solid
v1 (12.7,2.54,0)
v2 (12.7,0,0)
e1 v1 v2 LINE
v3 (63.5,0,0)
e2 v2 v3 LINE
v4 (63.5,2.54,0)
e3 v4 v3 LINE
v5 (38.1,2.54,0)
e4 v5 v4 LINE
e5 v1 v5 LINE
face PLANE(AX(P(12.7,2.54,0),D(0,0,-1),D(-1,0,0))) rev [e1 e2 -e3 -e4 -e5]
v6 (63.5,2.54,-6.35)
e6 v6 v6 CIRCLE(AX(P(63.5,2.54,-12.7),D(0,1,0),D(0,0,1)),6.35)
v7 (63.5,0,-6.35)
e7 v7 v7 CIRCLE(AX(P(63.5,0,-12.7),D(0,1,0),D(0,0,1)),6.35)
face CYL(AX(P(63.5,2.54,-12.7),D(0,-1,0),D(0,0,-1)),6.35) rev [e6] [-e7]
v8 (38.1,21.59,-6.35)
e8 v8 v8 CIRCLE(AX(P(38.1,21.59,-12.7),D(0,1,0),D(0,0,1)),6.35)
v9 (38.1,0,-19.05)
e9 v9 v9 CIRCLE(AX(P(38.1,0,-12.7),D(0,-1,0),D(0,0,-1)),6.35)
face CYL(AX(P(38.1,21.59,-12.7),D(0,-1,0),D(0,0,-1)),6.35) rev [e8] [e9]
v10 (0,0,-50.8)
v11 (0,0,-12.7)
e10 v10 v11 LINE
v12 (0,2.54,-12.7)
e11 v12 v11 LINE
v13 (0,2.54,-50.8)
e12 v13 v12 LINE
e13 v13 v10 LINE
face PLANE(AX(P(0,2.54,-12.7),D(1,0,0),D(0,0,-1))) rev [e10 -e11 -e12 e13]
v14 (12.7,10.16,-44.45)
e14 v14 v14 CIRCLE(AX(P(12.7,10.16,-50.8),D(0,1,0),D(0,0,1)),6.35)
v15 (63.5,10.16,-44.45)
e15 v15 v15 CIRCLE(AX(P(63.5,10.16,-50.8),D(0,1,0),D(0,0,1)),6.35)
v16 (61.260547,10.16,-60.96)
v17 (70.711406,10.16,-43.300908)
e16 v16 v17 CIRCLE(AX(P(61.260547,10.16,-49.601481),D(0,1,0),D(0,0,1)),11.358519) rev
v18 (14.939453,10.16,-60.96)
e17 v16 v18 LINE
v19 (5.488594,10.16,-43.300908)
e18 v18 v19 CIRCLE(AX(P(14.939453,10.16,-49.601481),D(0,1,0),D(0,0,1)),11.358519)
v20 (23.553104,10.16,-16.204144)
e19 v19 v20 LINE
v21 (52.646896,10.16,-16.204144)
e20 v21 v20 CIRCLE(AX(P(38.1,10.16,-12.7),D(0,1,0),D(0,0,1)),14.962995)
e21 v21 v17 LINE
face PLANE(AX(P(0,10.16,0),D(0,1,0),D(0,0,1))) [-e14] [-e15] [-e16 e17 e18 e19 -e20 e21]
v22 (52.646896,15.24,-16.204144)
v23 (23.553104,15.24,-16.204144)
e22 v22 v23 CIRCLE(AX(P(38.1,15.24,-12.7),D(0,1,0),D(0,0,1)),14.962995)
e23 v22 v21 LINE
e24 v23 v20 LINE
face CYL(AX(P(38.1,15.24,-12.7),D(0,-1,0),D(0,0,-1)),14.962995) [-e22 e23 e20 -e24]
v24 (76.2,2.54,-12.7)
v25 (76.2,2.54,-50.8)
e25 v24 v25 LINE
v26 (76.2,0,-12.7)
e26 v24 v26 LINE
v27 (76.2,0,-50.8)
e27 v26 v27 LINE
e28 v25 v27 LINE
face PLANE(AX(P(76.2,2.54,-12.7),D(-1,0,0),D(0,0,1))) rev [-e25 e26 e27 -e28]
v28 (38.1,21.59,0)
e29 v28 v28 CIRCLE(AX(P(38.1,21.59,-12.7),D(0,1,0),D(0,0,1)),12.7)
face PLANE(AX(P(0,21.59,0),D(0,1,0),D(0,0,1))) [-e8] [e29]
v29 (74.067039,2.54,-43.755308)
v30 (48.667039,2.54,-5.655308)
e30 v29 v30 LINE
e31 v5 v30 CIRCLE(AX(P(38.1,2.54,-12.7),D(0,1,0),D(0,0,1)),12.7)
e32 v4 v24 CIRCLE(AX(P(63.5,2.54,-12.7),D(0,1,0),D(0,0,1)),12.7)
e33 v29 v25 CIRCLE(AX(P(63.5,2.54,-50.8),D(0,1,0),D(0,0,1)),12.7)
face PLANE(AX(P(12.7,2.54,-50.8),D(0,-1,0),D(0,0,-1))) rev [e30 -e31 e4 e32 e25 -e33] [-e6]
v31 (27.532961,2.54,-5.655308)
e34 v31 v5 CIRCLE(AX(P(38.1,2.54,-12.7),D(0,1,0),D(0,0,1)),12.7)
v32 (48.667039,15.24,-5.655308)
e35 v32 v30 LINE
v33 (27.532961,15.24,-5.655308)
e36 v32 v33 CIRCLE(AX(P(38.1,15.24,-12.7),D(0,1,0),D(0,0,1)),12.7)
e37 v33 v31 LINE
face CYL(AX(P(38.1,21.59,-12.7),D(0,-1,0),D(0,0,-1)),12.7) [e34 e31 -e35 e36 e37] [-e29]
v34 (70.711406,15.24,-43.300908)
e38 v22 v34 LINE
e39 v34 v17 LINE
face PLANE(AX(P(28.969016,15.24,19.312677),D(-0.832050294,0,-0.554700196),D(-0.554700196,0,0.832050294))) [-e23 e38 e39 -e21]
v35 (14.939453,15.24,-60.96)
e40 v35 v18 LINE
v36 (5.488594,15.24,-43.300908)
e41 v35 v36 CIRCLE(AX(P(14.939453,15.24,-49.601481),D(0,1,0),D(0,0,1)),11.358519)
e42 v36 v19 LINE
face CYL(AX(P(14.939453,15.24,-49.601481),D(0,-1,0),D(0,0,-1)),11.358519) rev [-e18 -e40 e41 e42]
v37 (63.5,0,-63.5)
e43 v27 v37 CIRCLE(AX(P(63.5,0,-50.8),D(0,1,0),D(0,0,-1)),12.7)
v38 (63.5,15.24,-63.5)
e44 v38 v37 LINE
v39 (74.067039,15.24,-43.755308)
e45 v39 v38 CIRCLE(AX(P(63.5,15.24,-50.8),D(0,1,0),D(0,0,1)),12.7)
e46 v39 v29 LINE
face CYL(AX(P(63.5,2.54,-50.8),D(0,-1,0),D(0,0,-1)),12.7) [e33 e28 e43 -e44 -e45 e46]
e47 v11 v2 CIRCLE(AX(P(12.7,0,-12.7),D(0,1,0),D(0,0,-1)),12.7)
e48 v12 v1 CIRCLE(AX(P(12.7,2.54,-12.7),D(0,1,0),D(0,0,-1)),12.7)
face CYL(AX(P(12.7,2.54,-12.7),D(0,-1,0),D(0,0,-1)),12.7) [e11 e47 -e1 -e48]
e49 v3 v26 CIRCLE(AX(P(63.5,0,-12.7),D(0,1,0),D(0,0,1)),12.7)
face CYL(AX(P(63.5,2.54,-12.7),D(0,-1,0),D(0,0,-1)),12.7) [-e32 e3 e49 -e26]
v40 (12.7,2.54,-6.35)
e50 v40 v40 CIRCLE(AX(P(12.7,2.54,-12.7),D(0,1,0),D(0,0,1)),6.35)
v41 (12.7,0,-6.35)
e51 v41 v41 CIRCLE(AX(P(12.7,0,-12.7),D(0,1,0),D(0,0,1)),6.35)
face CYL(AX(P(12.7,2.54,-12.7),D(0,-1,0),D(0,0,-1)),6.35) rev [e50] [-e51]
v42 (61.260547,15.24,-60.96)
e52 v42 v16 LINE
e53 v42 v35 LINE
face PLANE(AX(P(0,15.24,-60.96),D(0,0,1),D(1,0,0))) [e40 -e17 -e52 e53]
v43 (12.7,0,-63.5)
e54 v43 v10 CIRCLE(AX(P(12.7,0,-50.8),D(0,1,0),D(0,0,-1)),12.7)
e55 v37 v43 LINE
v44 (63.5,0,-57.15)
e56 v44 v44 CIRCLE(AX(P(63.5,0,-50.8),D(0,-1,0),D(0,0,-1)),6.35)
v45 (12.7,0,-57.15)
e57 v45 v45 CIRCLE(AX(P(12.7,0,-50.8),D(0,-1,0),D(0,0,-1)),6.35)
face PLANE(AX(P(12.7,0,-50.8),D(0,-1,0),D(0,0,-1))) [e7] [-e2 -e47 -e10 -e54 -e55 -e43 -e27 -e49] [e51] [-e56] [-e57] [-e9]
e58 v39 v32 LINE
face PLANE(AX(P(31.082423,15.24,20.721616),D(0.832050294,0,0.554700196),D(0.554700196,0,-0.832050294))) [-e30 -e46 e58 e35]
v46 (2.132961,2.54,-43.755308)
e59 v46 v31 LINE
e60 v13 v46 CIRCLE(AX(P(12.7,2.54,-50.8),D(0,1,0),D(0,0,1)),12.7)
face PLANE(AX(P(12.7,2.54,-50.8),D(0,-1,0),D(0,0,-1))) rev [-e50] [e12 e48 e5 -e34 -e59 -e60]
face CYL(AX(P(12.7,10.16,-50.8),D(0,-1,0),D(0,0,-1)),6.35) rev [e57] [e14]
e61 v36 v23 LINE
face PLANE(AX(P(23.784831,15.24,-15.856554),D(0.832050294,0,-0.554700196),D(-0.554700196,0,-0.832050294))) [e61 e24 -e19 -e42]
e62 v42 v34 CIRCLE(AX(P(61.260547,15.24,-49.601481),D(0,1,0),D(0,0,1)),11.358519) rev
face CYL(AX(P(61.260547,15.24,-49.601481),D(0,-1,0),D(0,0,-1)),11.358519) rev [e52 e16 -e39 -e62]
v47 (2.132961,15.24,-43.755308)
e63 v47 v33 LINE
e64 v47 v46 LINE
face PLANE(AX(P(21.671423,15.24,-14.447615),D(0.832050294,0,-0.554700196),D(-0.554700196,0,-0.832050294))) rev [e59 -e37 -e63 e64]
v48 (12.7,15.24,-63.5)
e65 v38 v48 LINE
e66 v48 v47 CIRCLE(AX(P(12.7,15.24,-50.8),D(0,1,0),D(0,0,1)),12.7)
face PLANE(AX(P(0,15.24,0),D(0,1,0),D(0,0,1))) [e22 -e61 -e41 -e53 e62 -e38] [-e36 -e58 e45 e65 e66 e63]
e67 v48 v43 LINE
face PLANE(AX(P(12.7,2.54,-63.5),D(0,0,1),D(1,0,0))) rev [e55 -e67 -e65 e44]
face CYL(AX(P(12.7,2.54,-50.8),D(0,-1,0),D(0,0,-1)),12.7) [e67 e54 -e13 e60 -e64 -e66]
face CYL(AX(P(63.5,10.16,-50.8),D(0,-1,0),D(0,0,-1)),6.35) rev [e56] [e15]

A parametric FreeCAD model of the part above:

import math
import FreeCAD as App
import Part
import Sketcher
Q = App.Units.Quantity

doc = App.newDocument("Part")
params = doc.addObject("Spreadsheet::Sheet", "Params")
for row, (alias, value) in enumerate([
    ("sketch1_diameter", "0.5 in"),
    ("sketch1_radius", "0.5 in"),
    ("sketch1_width", "2 in"),
    ("sketch1_height", "1.5 in"),
    ("pad1_length", "0.1 in"),
    ("sketch2_radius", "0.5 in"),
    ("sketch2_width", "2 in"),
    ("pad2_length", "0.5 in"),
    ("sketch3_diameter", "1 in"),
    ("sketch3_diameter2", "0.5 in"),
    ("pad3_length", "0.75 in"),
    ("sketch4_diameter", "0.5 in"),
    ("pad4_length", "0.3 in"),
    ("sketch5_diameter", "0.5 in"),
    ("pocket1_length", "0.3 in"),
], start=1):
    params.set(f"A{row}", alias)
    params.set(f"B{row}", "=" + value)
    params.setAlias(f"B{row}", alias)

body = doc.addObject("PartDesign::Body", "Body")

sketch1 = body.newObject("Sketcher::SketchObject", "Sketch")
sketch1.AttachmentSupport = (doc.getObject("XZ_Plane"), [""])
sketch1.MapMode = "FlatFace"
sketch1.addGeometry([
    Part.LineSegment(App.Vector(12.7, 0, 0), App.Vector(63.5, 0, 0)),
    Part.ArcOfCircle(Part.Circle(App.Vector(63.5, -12.7, 0), App.Vector(0, 0, 1), 12.7), math.radians(0), math.radians(90)),
    Part.LineSegment(App.Vector(76.2, -12.7, 0), App.Vector(76.2, -50.8, 0)),
    Part.ArcOfCircle(Part.Circle(App.Vector(63.5, -50.8, 0), App.Vector(0, 0, 1), 12.7), math.radians(-90), math.radians(0)),
    Part.LineSegment(App.Vector(63.5, -63.5, 0), App.Vector(12.7, -63.5, 0)),
    Part.ArcOfCircle(Part.Circle(App.Vector(12.7, -50.8, 0), App.Vector(0, 0, 1), 12.7), math.radians(180), math.radians(270)),
    Part.LineSegment(App.Vector(0, -50.8, 0), App.Vector(0, -12.7, 0)),
    Part.ArcOfCircle(Part.Circle(App.Vector(12.7, -12.7, 0), App.Vector(0, 0, 1), 12.7), math.radians(90), math.radians(180)),
    Part.Circle(App.Vector(12.7, -12.7, 0), App.Vector(0, 0, 1), 6.35),
    Part.Circle(App.Vector(63.5, -12.7, 0), App.Vector(0, 0, 1), 6.35),
], False)
sketch1.addConstraint([
    Sketcher.Constraint("Tangent", 0, 2, 1, 2),
    Sketcher.Constraint("Tangent", 1, 1, 2, 1),
    Sketcher.Constraint("Tangent", 2, 2, 3, 2),
    Sketcher.Constraint("Tangent", 3, 1, 4, 1),
    Sketcher.Constraint("Tangent", 4, 2, 5, 2),
    Sketcher.Constraint("Tangent", 5, 1, 6, 1),
    Sketcher.Constraint("Tangent", 6, 2, 7, 2),
    Sketcher.Constraint("Tangent", 7, 1, 0, 1),
    Sketcher.Constraint("Horizontal", 0),
    Sketcher.Constraint("Vertical", 2),
    Sketcher.Constraint("Horizontal", 4),
    Sketcher.Constraint("Vertical", 6),
    Sketcher.Constraint("Coincident", 8, 3, 7, 3),
    Sketcher.Constraint("Coincident", 9, 3, 1, 3),
    Sketcher.Constraint("Equal", 1, 3),
    Sketcher.Constraint("Equal", 3, 5),
    Sketcher.Constraint("Equal", 5, 7),
    Sketcher.Constraint("Equal", 8, 9),
    Sketcher.Constraint("PointOnObject", 0, 2, -1),
    Sketcher.Constraint("PointOnObject", 5, 1, -2),
    Sketcher.Constraint("Diameter", 8, Q("0.5 in")),
    Sketcher.Constraint("Radius", 1, Q("0.5 in")),
    Sketcher.Constraint("DistanceX", 0, 1, 0, 2, Q("2 in")),
    Sketcher.Constraint("DistanceY", 2, 2, 2, 1, Q("1.5 in")),
])
sketch1.setExpression("Constraints[20]", "Params.sketch1_diameter")
sketch1.setExpression("Constraints[21]", "Params.sketch1_radius")
sketch1.setExpression("Constraints[22]", "Params.sketch1_width")
sketch1.setExpression("Constraints[23]", "Params.sketch1_height")
pad1 = body.newObject("PartDesign::Pad", "Pad")
pad1.Profile = sketch1
pad1.setExpression("Length", "Params.pad1_length")
pad1.Reversed = True

sketch2 = body.newObject("Sketcher::SketchObject", "Sketch001")
sketch2.AttachmentSupport = (doc.getObject("XZ_Plane"), [""])
sketch2.MapMode = "FlatFace"
sketch2.AttachmentOffset = App.Placement(App.Vector(0, 0, -0.1 * 25.4), App.Rotation())
sketch2.addGeometry([
    Part.LineSegment(App.Vector(63.5, -63.5, 0), App.Vector(12.7, -63.5, 0)),
    Part.ArcOfCircle(Part.Circle(App.Vector(12.7, -50.8, 0), App.Vector(0, 0, 1), 12.7), math.radians(180), math.radians(270)),
    Part.ArcOfCircle(Part.Circle(App.Vector(12.7, -50.8, 0), App.Vector(0, 0, 1), 12.7), math.radians(146.309932), math.radians(180)),
    Part.LineSegment(App.Vector(2.132961, -43.755308, 0), App.Vector(27.532961, -5.655308, 0)),
    Part.ArcOfCircle(Part.Circle(App.Vector(38.1, -12.7, 0), App.Vector(0, 0, 1), 12.7), math.radians(146.309932), math.radians(360)),
    Part.ArcOfCircle(Part.Circle(App.Vector(38.1, -12.7, 0), App.Vector(0, 0, 1), 12.7), math.radians(0), math.radians(33.690068)),
    Part.LineSegment(App.Vector(48.667039, -5.655308, 0), App.Vector(74.067039, -43.755308, 0)),
    Part.ArcOfCircle(Part.Circle(App.Vector(63.5, -50.8, 0), App.Vector(0, 0, 1), 12.7), math.radians(0), math.radians(33.690068)),
    Part.ArcOfCircle(Part.Circle(App.Vector(63.5, -50.8, 0), App.Vector(0, 0, 1), 12.7), math.radians(-90), math.radians(0)),
    Part.ArcOfCircle(Part.Circle(App.Vector(38.1, -12.7, 0), App.Vector(0, 0, 1), 14.962995), math.radians(-166.456277), math.radians(-13.543723)),
    Part.LineSegment(App.Vector(23.553104, -16.204144, 0), App.Vector(5.488594, -43.300908, 0)),
    Part.ArcOfCircle(Part.Circle(App.Vector(14.939453, -49.601481, 0), App.Vector(0, 0, 1), 11.358519), math.radians(146.309932), math.radians(270)),
    Part.LineSegment(App.Vector(14.939453, -60.96, 0), App.Vector(61.260547, -60.96, 0)),
    Part.ArcOfCircle(Part.Circle(App.Vector(61.260547, -49.601481, 0), App.Vector(0, 0, 1), 11.358519), math.radians(-90), math.radians(33.690068)),
    Part.LineSegment(App.Vector(70.711406, -43.300908, 0), App.Vector(52.646896, -16.204144, 0)),
], False)
sketch2.addConstraint([
    Sketcher.Constraint("Tangent", 0, 2, 1, 2),
    Sketcher.Constraint("Tangent", 1, 1, 2, 2),
    Sketcher.Constraint("Tangent", 2, 1, 3, 1),
    Sketcher.Constraint("Tangent", 3, 2, 4, 1),
    Sketcher.Constraint("Tangent", 4, 2, 5, 1),
    Sketcher.Constraint("Tangent", 5, 2, 6, 1),
    Sketcher.Constraint("Tangent", 6, 2, 7, 2),
    Sketcher.Constraint("Tangent", 7, 1, 8, 2),
    Sketcher.Constraint("Tangent", 8, 1, 0, 1),
    Sketcher.Constraint("Coincident", 9, 1, 10, 1),
    Sketcher.Constraint("Tangent", 10, 2, 11, 1),
    Sketcher.Constraint("Tangent", 11, 2, 12, 1),
    Sketcher.Constraint("Tangent", 12, 2, 13, 1),
    Sketcher.Constraint("Tangent", 13, 2, 14, 1),
    Sketcher.Constraint("Coincident", 14, 2, 9, 2),
    Sketcher.Constraint("Horizontal", 0),
    Sketcher.Constraint("Horizontal", 12),
    Sketcher.Constraint("Coincident", 9, 3, 4, 3),
    Sketcher.Constraint("Equal", 1, 2),
    Sketcher.Constraint("Equal", 2, 4),
    Sketcher.Constraint("Equal", 4, 5),
    Sketcher.Constraint("Equal", 5, 7),
    Sketcher.Constraint("Equal", 7, 8),
    Sketcher.Constraint("Equal", 11, 13),
    Sketcher.Constraint("PointOnObject", 1, 1, -2),
    Sketcher.Constraint("Parallel", 3, 10),
    Sketcher.Constraint("Parallel", 6, 14),
    Sketcher.Constraint("Horizontal", 8, 3, 1, 1),
    Sketcher.Constraint("Horizontal", 9, 3, 4, 2),
    Sketcher.Constraint("Horizontal", 3, 2, 5, 2),
    Sketcher.Constraint("Horizontal", 1, 1, 7, 1),
    Sketcher.Constraint("Horizontal", 9, 1, 14, 2),
    Sketcher.Constraint("Radius", 1, Q("0.5 in")),
    Sketcher.Constraint("DistanceX", 0, 2, 0, 1, Q("2 in")),
    Sketcher.Constraint("DistanceY", 1, 3, -1, 1, Q("2 in")),
    Sketcher.Constraint("DistanceY", 4, 3, -1, 1, Q("0.5 in")),
    Sketcher.Constraint("DistanceY", 11, 2, -1, 1, Q("2.4 in")),
    Sketcher.Constraint("Radius", 11, 11.358519),
    Sketcher.Constraint("Radius", 9, 14.962995),
    Sketcher.Constraint("DistanceX", 12, 1, 12, 2, 46.321093),
])
sketch2.setExpression("Constraints[32]", "Params.sketch2_radius")
sketch2.setExpression("Constraints[33]", "Params.sketch2_width")
pad2 = body.newObject("PartDesign::Pad", "Pad001")
pad2.Profile = sketch2
pad2.setExpression("Length", "Params.pad2_length")
pad2.Reversed = True

sketch3 = body.newObject("Sketcher::SketchObject", "Sketch002")
sketch3.AttachmentSupport = (doc.getObject("XZ_Plane"), [""])
sketch3.MapMode = "FlatFace"
sketch3.AttachmentOffset = App.Placement(App.Vector(0, 0, -0.1 * 25.4), App.Rotation())
sketch3.addGeometry([
    Part.Circle(App.Vector(38.1, -12.7, 0), App.Vector(0, 0, 1), 12.7),
    Part.Circle(App.Vector(38.1, -12.7, 0), App.Vector(0, 0, 1), 6.35),
], False)
sketch3.addConstraint([
    Sketcher.Constraint("Coincident", 1, 3, 0, 3),
    Sketcher.Constraint("Diameter", 0, Q("1 in")),
    Sketcher.Constraint("Diameter", 1, Q("0.5 in")),
    Sketcher.Constraint("DistanceX", -1, 1, 0, 3, Q("1.5 in")),
    Sketcher.Constraint("DistanceY", 0, 3, -1, 1, Q("0.5 in")),
])
sketch3.setExpression("Constraints[1]", "Params.sketch3_diameter")
sketch3.setExpression("Constraints[2]", "Params.sketch3_diameter2")
pad3 = body.newObject("PartDesign::Pad", "Pad002")
pad3.Profile = sketch3
pad3.setExpression("Length", "Params.pad3_length")
pad3.Reversed = True

sketch4 = body.newObject("Sketcher::SketchObject", "Sketch003")
sketch4.AttachmentSupport = (doc.getObject("XZ_Plane"), [""])
sketch4.MapMode = "FlatFace"
sketch4.AttachmentOffset = App.Placement(App.Vector(0, 0, -0.1 * 25.4), App.Rotation())
sketch4.addGeometry([
    Part.ArcOfCircle(Part.Circle(App.Vector(61.260547, -49.601481, 0), App.Vector(0, 0, 1), 11.358519), math.radians(-90), math.radians(33.690068)),
    Part.LineSegment(App.Vector(61.260547, -60.96, 0), App.Vector(14.939453, -60.96, 0)),
    Part.ArcOfCircle(Part.Circle(App.Vector(14.939453, -49.601481, 0), App.Vector(0, 0, 1), 11.358519), math.radians(146.309932), math.radians(270)),
    Part.LineSegment(App.Vector(5.488594, -43.300908, 0), App.Vector(23.553104, -16.204144, 0)),
    Part.ArcOfCircle(Part.Circle(App.Vector(38.1, -12.7, 0), App.Vector(0, 0, 1), 14.962995), math.radians(-166.456277), math.radians(-13.543723)),
    Part.LineSegment(App.Vector(52.646896, -16.204144, 0), App.Vector(70.711406, -43.300908, 0)),
    Part.Circle(App.Vector(63.5, -50.8, 0), App.Vector(0, 0, 1), 6.35),
    Part.Circle(App.Vector(12.7, -50.8, 0), App.Vector(0, 0, 1), 6.35),
], False)
sketch4.addConstraint([
    Sketcher.Constraint("Tangent", 0, 1, 1, 1),
    Sketcher.Constraint("Tangent", 1, 2, 2, 2),
    Sketcher.Constraint("Tangent", 2, 1, 3, 1),
    Sketcher.Constraint("Coincident", 3, 2, 4, 1),
    Sketcher.Constraint("Coincident", 4, 2, 5, 1),
    Sketcher.Constraint("Tangent", 5, 2, 0, 2),
    Sketcher.Constraint("Horizontal", 1),
    Sketcher.Constraint("Equal", 0, 2),
    Sketcher.Constraint("Equal", 6, 7),
    Sketcher.Constraint("Horizontal", 6, 3, 7, 3),
    Sketcher.Constraint("Horizontal", 3, 2, 4, 2),
    Sketcher.Constraint("Horizontal", 2, 1, 5, 2),
    Sketcher.Constraint("Diameter", 6, Q("0.5 in")),
    Sketcher.Constraint("DistanceY", 6, 3, -1, 1, Q("2 in")),
    Sketcher.Constraint("DistanceX", 4, 3, 6, 3, Q("1 in")),
    Sketcher.Constraint("DistanceX", 7, 3, 4, 3, Q("1 in")),
    Sketcher.Constraint("DistanceX", -1, 1, 4, 3, Q("1.5 in")),
    Sketcher.Constraint("DistanceY", 4, 3, -1, 1, Q("0.5 in")),
    Sketcher.Constraint("DistanceY", 0, 1, -1, 1, Q("2.4 in")),
    Sketcher.Constraint("Radius", 0, 11.358519),
    Sketcher.Constraint("Radius", 4, 14.962995),
    Sketcher.Constraint("DistanceX", 1, 2, 1, 1, 46.321093),
    Sketcher.Constraint("DistanceY", 2, 1, -1, 1, 43.300908),
])
sketch4.setExpression("Constraints[12]", "Params.sketch4_diameter")
pad4 = body.newObject("PartDesign::Pad", "Pad003")
pad4.Profile = sketch4
pad4.setExpression("Length", "Params.pad4_length")
pad4.Reversed = True

sketch5 = body.newObject("Sketcher::SketchObject", "Sketch004")
sketch5.AttachmentSupport = (doc.getObject("XZ_Plane"), [""])
sketch5.MapMode = "FlatFace"
sketch5.AttachmentOffset = App.Placement(App.Vector(0, 0, -0.1 * 25.4), App.Rotation())
sketch5.addGeometry([
    Part.Circle(App.Vector(12.7, -50.8, 0), App.Vector(0, 0, 1), 6.35),
    Part.Circle(App.Vector(63.5, -50.8, 0), App.Vector(0, 0, 1), 6.35),
    Part.Circle(App.Vector(38.1, -12.7, 0), App.Vector(0, 0, 1), 6.35),
], False)
sketch5.addConstraint([
    Sketcher.Constraint("Equal", 0, 1),
    Sketcher.Constraint("Equal", 1, 2),
    Sketcher.Constraint("Horizontal", 0, 3, 1, 3),
    Sketcher.Constraint("Diameter", 0, Q("0.5 in")),
    Sketcher.Constraint("DistanceY", 0, 3, -1, 1, Q("2 in")),
    Sketcher.Constraint("DistanceX", 0, 3, 1, 3, Q("2 in")),
    Sketcher.Constraint("DistanceX", 0, 3, 2, 3, Q("1 in")),
    Sketcher.Constraint("DistanceX", -1, 1, 0, 3, Q("0.5 in")),
    Sketcher.Constraint("DistanceY", 2, 3, -1, 1, Q("0.5 in")),
])
sketch5.setExpression("Constraints[3]", "Params.sketch5_diameter")
pocket1 = body.newObject("PartDesign::Pocket", "Pocket")
pocket1.Profile = sketch5
pocket1.setExpression("Length", "Params.pocket1_length")
pocket1.Reversed = True

doc.recompute()
